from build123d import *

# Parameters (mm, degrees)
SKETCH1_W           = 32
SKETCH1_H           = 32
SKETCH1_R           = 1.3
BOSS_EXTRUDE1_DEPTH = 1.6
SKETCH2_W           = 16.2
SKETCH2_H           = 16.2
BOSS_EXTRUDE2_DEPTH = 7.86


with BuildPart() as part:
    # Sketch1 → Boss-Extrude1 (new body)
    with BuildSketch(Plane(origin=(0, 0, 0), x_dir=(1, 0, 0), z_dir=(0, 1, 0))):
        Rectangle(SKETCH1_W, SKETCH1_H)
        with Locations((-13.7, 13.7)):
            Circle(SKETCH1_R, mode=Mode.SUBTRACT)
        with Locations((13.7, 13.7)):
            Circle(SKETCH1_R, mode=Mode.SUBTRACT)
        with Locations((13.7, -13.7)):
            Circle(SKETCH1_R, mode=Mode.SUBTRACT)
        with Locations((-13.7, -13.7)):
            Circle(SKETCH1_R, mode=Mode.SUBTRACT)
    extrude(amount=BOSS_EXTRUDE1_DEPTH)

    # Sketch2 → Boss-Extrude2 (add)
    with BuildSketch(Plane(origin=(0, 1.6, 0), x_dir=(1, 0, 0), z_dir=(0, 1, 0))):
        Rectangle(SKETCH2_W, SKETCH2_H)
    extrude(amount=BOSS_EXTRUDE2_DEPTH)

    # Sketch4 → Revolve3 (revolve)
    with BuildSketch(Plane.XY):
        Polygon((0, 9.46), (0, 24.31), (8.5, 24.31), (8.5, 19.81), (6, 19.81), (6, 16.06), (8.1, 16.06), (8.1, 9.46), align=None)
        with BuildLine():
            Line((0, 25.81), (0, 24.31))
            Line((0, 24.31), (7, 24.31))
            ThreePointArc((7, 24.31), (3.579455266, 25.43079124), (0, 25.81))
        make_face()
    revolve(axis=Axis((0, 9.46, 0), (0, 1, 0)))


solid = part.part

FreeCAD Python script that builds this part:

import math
import FreeCAD as App
import Part
import Sketcher

doc = App.newDocument("Part")
body = doc.addObject("PartDesign::Body", "Body")

sketch1 = body.newObject("Sketcher::SketchObject", "Sketch")
sketch1.AttachmentSupport = (doc.getObject("XZ_Plane"), [""])
sketch1.MapMode = "FlatFace"
sketch1.addGeometry(Part.LineSegment(App.Vector(-16, -16, 0), App.Vector(-16, 16, 0)), False)
sketch1.addGeometry(Part.LineSegment(App.Vector(-16, 16, 0), App.Vector(16, 16, 0)), False)
sketch1.addGeometry(Part.LineSegment(App.Vector(16, 16, 0), App.Vector(16, -16, 0)), False)
sketch1.addGeometry(Part.LineSegment(App.Vector(16, -16, 0), App.Vector(-16, -16, 0)), False)
sketch1.addGeometry(Part.Circle(App.Vector(-13.7, 13.7, 0), App.Vector(0, 0, 1), 1.3), False)
sketch1.addGeometry(Part.Circle(App.Vector(13.7, 13.7, 0), App.Vector(0, 0, 1), 1.3), False)
sketch1.addGeometry(Part.Circle(App.Vector(-13.7, -13.7, 0), App.Vector(0, 0, 1), 1.3), False)
sketch1.addGeometry(Part.Circle(App.Vector(13.7, -13.7, 0), App.Vector(0, 0, 1), 1.3), False)
sketch1.addConstraint(Sketcher.Constraint("Coincident", 0, 2, 1, 1))
sketch1.addConstraint(Sketcher.Constraint("Coincident", 1, 2, 2, 1))
sketch1.addConstraint(Sketcher.Constraint("Coincident", 2, 2, 3, 1))
sketch1.addConstraint(Sketcher.Constraint("Coincident", 3, 2, 0, 1))
sketch1.addConstraint(Sketcher.Constraint("Vertical", 0))
sketch1.addConstraint(Sketcher.Constraint("Horizontal", 1))
sketch1.addConstraint(Sketcher.Constraint("Vertical", 2))
sketch1.addConstraint(Sketcher.Constraint("Horizontal", 3))
sketch1.addConstraint(Sketcher.Constraint("Equal", 4, 5))
sketch1.addConstraint(Sketcher.Constraint("Equal", 5, 6))
sketch1.addConstraint(Sketcher.Constraint("Equal", 6, 7))
sketch1.addConstraint(Sketcher.Constraint("Symmetric", 5, 3, 6, 3, -1, 1))
sketch1.addConstraint(Sketcher.Constraint("Symmetric", 4, 3, 7, 3, -1, 1))
sketch1.addConstraint(Sketcher.Constraint("Symmetric", 0, 2, 2, 2, -1, 1))
sketch1.addConstraint(Sketcher.Constraint("Symmetric", 4, 3, 5, 3, -2))
sketch1.addConstraint(Sketcher.Constraint("Equal", 3, 0))
sketch1.addConstraint(Sketcher.Constraint("Diameter", 4, 2.6))
sketch1.addConstraint(Sketcher.Constraint("DistanceX", 1, 1, 1, 2, 32.0))
sketch1.addConstraint(Sketcher.Constraint("DistanceX", 4, 3, -1, 1, 13.7))
sketch1.addConstraint(Sketcher.Constraint("DistanceY", -1, 1, 4, 3, 13.7))
pad1 = body.newObject("PartDesign::Pad", "Pad")
pad1.Profile = sketch1
pad1.Length = 1.6
pad1.Reversed = True

sketch2 = body.newObject("Sketcher::SketchObject", "Sketch001")
sketch2.AttachmentSupport = (doc.getObject("XZ_Plane"), [""])
sketch2.MapMode = "FlatFace"
sketch2.AttachmentOffset = App.Placement(App.Vector(0, 0, -1.6), App.Rotation())
sketch2.addGeometry(Part.LineSegment(App.Vector(-8, -8, 0), App.Vector(-8, 8, 0)), False)
sketch2.addGeometry(Part.LineSegment(App.Vector(-8, 8, 0), App.Vector(8, 8, 0)), False)
sketch2.addGeometry(Part.LineSegment(App.Vector(8, 8, 0), App.Vector(8, -8, 0)), False)
sketch2.addGeometry(Part.LineSegment(App.Vector(8, -8, 0), App.Vector(-8, -8, 0)), False)
sketch2.addConstraint(Sketcher.Constraint("Coincident", 0, 2, 1, 1))
sketch2.addConstraint(Sketcher.Constraint("Coincident", 1, 2, 2, 1))
sketch2.addConstraint(Sketcher.Constraint("Coincident", 2, 2, 3, 1))
sketch2.addConstraint(Sketcher.Constraint("Coincident", 3, 2, 0, 1))
sketch2.addConstraint(Sketcher.Constraint("Vertical", 0))
sketch2.addConstraint(Sketcher.Constraint("Horizontal", 1))
sketch2.addConstraint(Sketcher.Constraint("Vertical", 2))
sketch2.addConstraint(Sketcher.Constraint("Horizontal", 3))
sketch2.addConstraint(Sketcher.Constraint("Symmetric", 0, 2, 2, 2, -1, 1))
sketch2.addConstraint(Sketcher.Constraint("Equal", 3, 0))
sketch2.addConstraint(Sketcher.Constraint("DistanceX", 1, 1, 1, 2, 16.2))
pad2 = body.newObject("PartDesign::Pad", "Pad001")
pad2.Profile = sketch2
pad2.Length = 7.86
pad2.Reversed = True

sketch3 = body.newObject("Sketcher::SketchObject", "Sketch002")
sketch3.AttachmentSupport = (doc.getObject("XY_Plane"), [""])
sketch3.MapMode = "FlatFace"
sketch3.addGeometry(Part.LineSegment(App.Vector(0, 25.8, 0), App.Vector(0, 9.5, 0)), False)
sketch3.addGeometry(Part.LineSegment(App.Vector(0, 9.5, 0), App.Vector(8.1, 9.5, 0)), False)
sketch3.addGeometry(Part.LineSegment(App.Vector(8.1, 9.5, 0), App.Vector(8.1, 16.1, 0)), False)
sketch3.addGeometry(Part.LineSegment(App.Vector(8.1, 16.1, 0), App.Vector(6, 16.1, 0)), False)
sketch3.addGeometry(Part.LineSegment(App.Vector(6, 16.1, 0), App.Vector(6, 19.8, 0)), False)
sketch3.addGeometry(Part.LineSegment(App.Vector(6, 19.8, 0), App.Vector(8.5, 19.8, 0)), False)
sketch3.addGeometry(Part.LineSegment(App.Vector(8.5, 19.8, 0), App.Vector(8.5, 24.3, 0)), False)
sketch3.addGeometry(Part.LineSegment(App.Vector(8.5, 24.3, 0), App.Vector(7, 24.3, 0)), False)
sketch3.addGeometry(Part.ArcOfCircle(Part.Circle(App.Vector(0, 8.7, 0), App.Vector(0, 0, 1), 17.1), math.radians(66), math.radians(90)), False)
sketch3.addConstraint(Sketcher.Constraint("Coincident", 0, 2, 1, 1))
sketch3.addConstraint(Sketcher.Constraint("Coincident", 1, 2, 2, 1))
sketch3.addConstraint(Sketcher.Constraint("Coincident", 2, 2, 3, 1))
sketch3.addConstraint(Sketcher.Constraint("Coincident", 3, 2, 4, 1))
sketch3.addConstraint(Sketcher.Constraint("Coincident", 4, 2, 5, 1))
sketch3.addConstraint(Sketcher.Constraint("Coincident", 5, 2, 6, 1))
sketch3.addConstraint(Sketcher.Constraint("Coincident", 6, 2, 7, 1))
sketch3.addConstraint(Sketcher.Constraint("Coincident", 7, 2, 8, 1))
sketch3.addConstraint(Sketcher.Constraint("Coincident", 8, 2, 0, 1))
sketch3.addConstraint(Sketcher.Constraint("Vertical", 0))
sketch3.addConstraint(Sketcher.Constraint("Horizontal", 1))
sketch3.addConstraint(Sketcher.Constraint("Vertical", 2))
sketch3.addConstraint(Sketcher.Constraint("Horizontal", 3))
sketch3.addConstraint(Sketcher.Constraint("Vertical", 4))
sketch3.addConstraint(Sketcher.Constraint("Horizontal", 5))
sketch3.addConstraint(Sketcher.Constraint("Vertical", 6))
sketch3.addConstraint(Sketcher.Constraint("Horizontal", 7))
sketch3.addConstraint(Sketcher.Constraint("PointOnObject", 8, 3, -2))
sketch3.addConstraint(Sketcher.Constraint("PointOnObject", 0, 2, -2))
sketch3.addConstraint(Sketcher.Constraint("DistanceX", 1, 1, 1, 2, 8.1))
sketch3.addConstraint(Sketcher.Constraint("DistanceX", 3, 2, 3, 1, 2.1))
sketch3.addConstraint(Sketcher.Constraint("DistanceX", 5, 1, 5, 2, 2.5))
sketch3.addConstraint(Sketcher.Constraint("DistanceX", 7, 2, 7, 1, 1.5))
sketch3.addConstraint(Sketcher.Constraint("DistanceY", 2, 1, 2, 2, 6.6))
sketch3.addConstraint(Sketcher.Constraint("DistanceY", 6, 1, 6, 2, 4.5))
sketch3.addConstraint(Sketcher.Constraint("DistanceY", 4, 2, 8, 2, 6.0))
sketch3.addConstraint(Sketcher.Constraint("DistanceY", 0, 2, 0, 1, 16.35))
sketch3.addConstraint(Sketcher.Constraint("DistanceY", -1, 1, 0, 2, 9.46))
revolution = body.newObject("PartDesign::Revolution", "Revolution")
revolution.Profile = sketch3
revolution.ReferenceAxis = (sketch3, ["V_Axis"])
revolution.Angle = 360

doc.recompute()
